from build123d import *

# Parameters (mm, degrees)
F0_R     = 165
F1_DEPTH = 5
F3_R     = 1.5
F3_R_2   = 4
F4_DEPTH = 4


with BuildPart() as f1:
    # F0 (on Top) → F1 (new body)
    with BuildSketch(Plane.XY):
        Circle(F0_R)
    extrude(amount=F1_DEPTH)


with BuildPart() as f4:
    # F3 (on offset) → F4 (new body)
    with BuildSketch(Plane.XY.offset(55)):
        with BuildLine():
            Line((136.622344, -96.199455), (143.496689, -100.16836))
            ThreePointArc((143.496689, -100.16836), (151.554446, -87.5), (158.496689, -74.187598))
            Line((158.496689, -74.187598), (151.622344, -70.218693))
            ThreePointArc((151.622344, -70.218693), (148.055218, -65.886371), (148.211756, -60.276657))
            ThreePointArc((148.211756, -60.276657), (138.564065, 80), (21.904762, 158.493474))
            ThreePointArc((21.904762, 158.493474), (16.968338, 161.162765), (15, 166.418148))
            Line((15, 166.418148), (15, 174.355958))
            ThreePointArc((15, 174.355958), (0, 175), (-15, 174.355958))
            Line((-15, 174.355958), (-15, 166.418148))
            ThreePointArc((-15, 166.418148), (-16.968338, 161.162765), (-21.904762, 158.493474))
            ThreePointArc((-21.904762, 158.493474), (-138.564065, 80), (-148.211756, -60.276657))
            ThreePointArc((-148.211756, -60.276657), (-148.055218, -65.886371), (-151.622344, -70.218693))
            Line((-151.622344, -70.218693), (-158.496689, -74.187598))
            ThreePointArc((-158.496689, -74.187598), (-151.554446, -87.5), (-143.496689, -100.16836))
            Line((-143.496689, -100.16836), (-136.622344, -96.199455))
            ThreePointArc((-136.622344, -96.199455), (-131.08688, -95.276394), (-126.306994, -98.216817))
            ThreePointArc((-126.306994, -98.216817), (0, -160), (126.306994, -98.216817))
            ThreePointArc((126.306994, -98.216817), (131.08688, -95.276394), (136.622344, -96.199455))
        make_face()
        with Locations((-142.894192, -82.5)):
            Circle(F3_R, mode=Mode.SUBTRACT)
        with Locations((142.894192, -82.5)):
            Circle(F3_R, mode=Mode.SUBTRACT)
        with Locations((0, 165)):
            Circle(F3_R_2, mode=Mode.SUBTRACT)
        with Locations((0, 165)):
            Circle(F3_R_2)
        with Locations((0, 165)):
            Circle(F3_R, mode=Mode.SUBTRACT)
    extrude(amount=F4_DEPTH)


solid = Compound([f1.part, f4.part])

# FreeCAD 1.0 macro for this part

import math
import FreeCAD as App
import Part
import Sketcher
Q = App.Units.Quantity

doc = App.newDocument("Part")
body = doc.addObject("PartDesign::Body", "Body")

# Sketch on XY plane
sketch1 = body.newObject("Sketcher::SketchObject", "Sketch")
sketch1.AttachmentSupport = (doc.getObject("XY_Plane"), [""])
sketch1.MapMode = "FlatFace"
sketch1.addGeometry(Part.Circle(App.Vector(0, 0, 0), App.Vector(0, 0, 1), 165), False)
sketch1.addConstraint([
    Sketcher.Constraint("Coincident", 0, 3, -1, 1),
    Sketcher.Constraint("Diameter", 0, 330.0),
])
pad1 = body.newObject("PartDesign::Pad", "Pad")
pad1.Profile = sketch1
pad1.Length = 5
body2 = doc.addObject("PartDesign::Body", "Body001")

# Sketch on XY plane
sketch2 = body2.newObject("Sketcher::SketchObject", "Sketch001")
sketch2.AttachmentSupport = (doc.getObject("XY_Plane001"), [""])
sketch2.MapMode = "FlatFace"
sketch2.AttachmentOffset = App.Placement(App.Vector(0, 0, 55), App.Rotation())
sketch2.addGeometry([
    Part.LineSegment(App.Vector(136.6, -96.2, 0), App.Vector(143.5, -100.2, 0)),  # 0
    Part.ArcOfCircle(Part.Circle(App.Vector(0, 0, 0), App.Vector(0, 0, 1), 175), math.radians(-34.92), math.radians(-25.08)),  # 1
    Part.LineSegment(App.Vector(158.5, -74.2, 0), App.Vector(151.6, -70.2, 0)),  # 2
    Part.ArcOfCircle(Part.Circle(App.Vector(155.6, -63.3, 0), App.Vector(0, 0, 1), 8), math.radians(158), math.radians(240)),  # 3
    Part.ArcOfCircle(Part.Circle(App.Vector(0, 0, 0), App.Vector(0, 0, 1), 160), math.radians(-22), math.radians(82)),  # 4
    Part.ArcOfCircle(Part.Circle(App.Vector(23, 166.4, 0), App.Vector(0, 0, 1), 8), math.radians(-180), math.radians(-98)),  # 5
    Part.LineSegment(App.Vector(15, 166.4, 0), App.Vector(15, 174.4, 0)),  # 6
    Part.ArcOfCircle(Part.Circle(App.Vector(0, 0, 0), App.Vector(0, 0, 1), 175), math.radians(85.08), math.radians(94.92)),  # 7
    Part.LineSegment(App.Vector(-15, 174.4, 0), App.Vector(-15, 166.4, 0)),  # 8
    Part.ArcOfCircle(Part.Circle(App.Vector(-23, 166.4, 0), App.Vector(0, 0, 1), 8), math.radians(-82), math.radians(0)),  # 9
    Part.ArcOfCircle(Part.Circle(App.Vector(0, 0, 0), App.Vector(0, 0, 1), 160), math.radians(98), math.radians(202)),  # 10
    Part.ArcOfCircle(Part.Circle(App.Vector(-155.6, -63.3, 0), App.Vector(0, 0, 1), 8), math.radians(-60), math.radians(22)),  # 11
    Part.LineSegment(App.Vector(-151.6, -70.2, 0), App.Vector(-158.5, -74.2, 0)),  # 12
    Part.ArcOfCircle(Part.Circle(App.Vector(0, 0, 0), App.Vector(0, 0, 1), 175), math.radians(-154.92), math.radians(-145.08)),  # 13
    Part.LineSegment(App.Vector(-143.5, -100.2, 0), App.Vector(-136.6, -96.2, 0)),  # 14
    Part.ArcOfCircle(Part.Circle(App.Vector(-132.6, -103.1, 0), App.Vector(0, 0, 1), 8), math.radians(38), math.radians(120)),  # 15
    Part.ArcOfCircle(Part.Circle(App.Vector(0, 0, 0), App.Vector(0, 0, 1), 160), math.radians(-142), math.radians(-38)),  # 16
    Part.ArcOfCircle(Part.Circle(App.Vector(132.6, -103.1, 0), App.Vector(0, 0, 1), 8), math.radians(60), math.radians(142)),  # 17
    Part.Circle(App.Vector(-142.9, -82.5, 0), App.Vector(0, 0, 1), 1.5),  # 18
    Part.Circle(App.Vector(142.9, -82.5, 0), App.Vector(0, 0, 1), 1.5),  # 19
    Part.Circle(App.Vector(0, 165, 0), App.Vector(0, 0, 1), 1.5),  # 20
], False)
sketch2.addConstraint([
    Sketcher.Constraint("Coincident", 0, 2, 1, 1),
    Sketcher.Constraint("Coincident", 1, 2, 2, 1),
    Sketcher.Constraint("Tangent", 2, 2, 3, 2),
    Sketcher.Constraint("Tangent", 3, 1, 4, 1),
    Sketcher.Constraint("Tangent", 4, 2, 5, 2),
    Sketcher.Constraint("Tangent", 5, 1, 6, 1),
    Sketcher.Constraint("Coincident", 6, 2, 7, 1),
    Sketcher.Constraint("Coincident", 7, 2, 8, 1),
    Sketcher.Constraint("Tangent", 8, 2, 9, 2),
    Sketcher.Constraint("Tangent", 9, 1, 10, 1),
    Sketcher.Constraint("Tangent", 10, 2, 11, 2),
    Sketcher.Constraint("Tangent", 11, 1, 12, 1),
    Sketcher.Constraint("Coincident", 12, 2, 13, 1),
    Sketcher.Constraint("Coincident", 13, 2, 14, 1),
    Sketcher.Constraint("Tangent", 14, 2, 15, 2),
    Sketcher.Constraint("Tangent", 15, 1, 16, 1),
    Sketcher.Constraint("Tangent", 16, 2, 17, 2),
    Sketcher.Constraint("Tangent", 17, 1, 0, 1),
    Sketcher.Constraint("Vertical", 6),
    Sketcher.Constraint("Vertical", 8),
    Sketcher.Constraint("Coincident", 1, 3, -1, 1),
    Sketcher.Constraint("Coincident", 4, 3, -1, 1),
    Sketcher.Constraint("Coincident", 10, 3, -1, 1),
    Sketcher.Constraint("Coincident", 13, 3, -1, 1),
    Sketcher.Constraint("Coincident", 16, 3, -1, 1),
    Sketcher.Constraint("Equal", 3, 5),
    Sketcher.Constraint("Equal", 5, 9),
    Sketcher.Constraint("Equal", 4, 10),
    Sketcher.Constraint("Equal", 9, 11),
    Sketcher.Constraint("Equal", 1, 13),
    Sketcher.Constraint("Equal", 11, 15),
    Sketcher.Constraint("Equal", 10, 16),
    Sketcher.Constraint("Equal", 15, 17),
    Sketcher.Constraint("Equal", 18, 19),
    Sketcher.Constraint("Equal", 19, 20),
    Sketcher.Constraint("Symmetric", 18, 3, 19, 3, -2),
    Sketcher.Constraint("Symmetric", 6, 2, 7, 2, -2),
    Sketcher.Constraint("Symmetric", 2, 2, 11, 1, -2),
    Sketcher.Constraint("Symmetric", 14, 2, 17, 1, -2),
    Sketcher.Constraint("PointOnObject", 20, 3, -2),
    Sketcher.Constraint("Parallel", 0, 2),
    Sketcher.Constraint("Equal", 0, 2),
    Sketcher.Constraint("Diameter", 18, 3.0),
    Sketcher.Constraint("Radius", 3, 8.000001),
    Sketcher.Constraint("Radius", 4, 159.999999),
    Sketcher.Constraint("Angle", 0, Q("-30 deg")),
    Sketcher.Constraint("DistanceX", -1, 1, 5, 3, 23.000001),
    Sketcher.Constraint("DistanceY", -1, 1, 20, 3, 165.0),
    Sketcher.Constraint("DistanceX", 11, 3, 15, 3, 23.000002),
    Sketcher.Constraint("DistanceY", 18, 3, -1, 1, 82.5),
    Sketcher.Constraint("Radius", 7, 175.00007),
    Sketcher.Constraint("Radius", 1, 175.000006),
    Sketcher.Constraint("DistanceY", 6, 1, 6, 2, 7.93781),
    Sketcher.Constraint("DistanceX", 18, 3, 15, 1, 16.587198),
])
pad2 = body2.newObject("PartDesign::Pad", "Pad001")
pad2.Profile = sketch2
pad2.Length = 4

doc.recompute()
